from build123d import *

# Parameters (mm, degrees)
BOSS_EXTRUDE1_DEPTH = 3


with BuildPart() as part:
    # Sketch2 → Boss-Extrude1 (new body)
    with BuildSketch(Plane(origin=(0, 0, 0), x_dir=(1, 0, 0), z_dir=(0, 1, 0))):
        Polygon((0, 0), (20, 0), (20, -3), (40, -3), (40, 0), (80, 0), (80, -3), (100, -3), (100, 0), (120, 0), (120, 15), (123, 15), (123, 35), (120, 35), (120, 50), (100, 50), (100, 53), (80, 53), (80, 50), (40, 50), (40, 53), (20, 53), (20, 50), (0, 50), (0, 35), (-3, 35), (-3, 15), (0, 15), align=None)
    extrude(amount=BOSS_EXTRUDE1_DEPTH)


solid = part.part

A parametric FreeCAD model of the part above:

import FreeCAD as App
import Part
import Sketcher
from FreeCAD import Vector

doc = App.newDocument("Part")
body = doc.addObject("PartDesign::Body", "Body")

sketch1 = body.newObject("Sketcher::SketchObject", "Sketch")
sketch1.AttachmentSupport = (doc.getObject("XZ_Plane"), [""])
sketch1.MapMode = "FlatFace"
sketch1.addGeometry([
    Part.LineSegment(Vector(0, 0, 0), Vector(20, 0, 0)),
    Part.LineSegment(Vector(20, 0, 0), Vector(20, 3, 0)),
    Part.LineSegment(Vector(20, 3, 0), Vector(40, 3, 0)),
    Part.LineSegment(Vector(40, 3, 0), Vector(40, 0, 0)),
    Part.LineSegment(Vector(40, 0, 0), Vector(80, 0, 0)),
    Part.LineSegment(Vector(80, 0, 0), Vector(80, 3, 0)),
    Part.LineSegment(Vector(80, 3, 0), Vector(100, 3, 0)),
    Part.LineSegment(Vector(100, 3, 0), Vector(100, 0, 0)),
    Part.LineSegment(Vector(100, 0, 0), Vector(120, 0, 0)),
    Part.LineSegment(Vector(120, 0, 0), Vector(120, -15, 0)),
    Part.LineSegment(Vector(120, -15, 0), Vector(123, -15, 0)),
    Part.LineSegment(Vector(123, -15, 0), Vector(123, -35, 0)),
    Part.LineSegment(Vector(123, -35, 0), Vector(120, -35, 0)),
    Part.LineSegment(Vector(120, -35, 0), Vector(120, -50, 0)),
    Part.LineSegment(Vector(120, -50, 0), Vector(100, -50, 0)),
    Part.LineSegment(Vector(100, -50, 0), Vector(100, -53, 0)),
    Part.LineSegment(Vector(100, -53, 0), Vector(80, -53, 0)),
    Part.LineSegment(Vector(80, -53, 0), Vector(80, -50, 0)),
    Part.LineSegment(Vector(80, -50, 0), Vector(40, -50, 0)),
    Part.LineSegment(Vector(40, -50, 0), Vector(40, -53, 0)),
    Part.LineSegment(Vector(40, -53, 0), Vector(20, -53, 0)),
    Part.LineSegment(Vector(20, -53, 0), Vector(20, -50, 0)),
    Part.LineSegment(Vector(20, -50, 0), Vector(0, -50, 0)),
    Part.LineSegment(Vector(0, -50, 0), Vector(0, -35, 0)),
    Part.LineSegment(Vector(0, -35, 0), Vector(-3, -35, 0)),
    Part.LineSegment(Vector(-3, -35, 0), Vector(-3, -15, 0)),
    Part.LineSegment(Vector(-3, -15, 0), Vector(0, -15, 0)),
    Part.LineSegment(Vector(0, -15, 0), Vector(0, 0, 0)),
], False)
sketch1.addConstraint([
    Sketcher.Constraint("Coincident", 0, 2, 1, 1),
    Sketcher.Constraint("Coincident", 1, 2, 2, 1),
    Sketcher.Constraint("Coincident", 2, 2, 3, 1),
    Sketcher.Constraint("Coincident", 3, 2, 4, 1),
    Sketcher.Constraint("Coincident", 4, 2, 5, 1),
    Sketcher.Constraint("Coincident", 5, 2, 6, 1),
    Sketcher.Constraint("Coincident", 6, 2, 7, 1),
    Sketcher.Constraint("Coincident", 7, 2, 8, 1),
    Sketcher.Constraint("Coincident", 8, 2, 9, 1),
    Sketcher.Constraint("Coincident", 9, 2, 10, 1),
    Sketcher.Constraint("Coincident", 10, 2, 11, 1),
    Sketcher.Constraint("Coincident", 11, 2, 12, 1),
    Sketcher.Constraint("Coincident", 12, 2, 13, 1),
    Sketcher.Constraint("Coincident", 13, 2, 14, 1),
    Sketcher.Constraint("Coincident", 14, 2, 15, 1),
    Sketcher.Constraint("Coincident", 15, 2, 16, 1),
    Sketcher.Constraint("Coincident", 16, 2, 17, 1),
    Sketcher.Constraint("Coincident", 17, 2, 18, 1),
    Sketcher.Constraint("Coincident", 18, 2, 19, 1),
    Sketcher.Constraint("Coincident", 19, 2, 20, 1),
    Sketcher.Constraint("Coincident", 20, 2, 21, 1),
    Sketcher.Constraint("Coincident", 21, 2, 22, 1),
    Sketcher.Constraint("Coincident", 22, 2, 23, 1),
    Sketcher.Constraint("Coincident", 23, 2, 24, 1),
    Sketcher.Constraint("Coincident", 24, 2, 25, 1),
    Sketcher.Constraint("Coincident", 25, 2, 26, 1),
    Sketcher.Constraint("Coincident", 26, 2, 27, 1),
    Sketcher.Constraint("Coincident", 27, 2, 0, 1),
    Sketcher.Constraint("Horizontal", 0),
    Sketcher.Constraint("Vertical", 1),
    Sketcher.Constraint("Horizontal", 2),
    Sketcher.Constraint("Vertical", 3),
    Sketcher.Constraint("Horizontal", 4),
    Sketcher.Constraint("Vertical", 5),
    Sketcher.Constraint("Horizontal", 6),
    Sketcher.Constraint("Vertical", 7),
    Sketcher.Constraint("Horizontal", 8),
    Sketcher.Constraint("Vertical", 9),
    Sketcher.Constraint("Horizontal", 10),
    Sketcher.Constraint("Vertical", 11),
    Sketcher.Constraint("Horizontal", 12),
    Sketcher.Constraint("Vertical", 13),
    Sketcher.Constraint("Horizontal", 14),
    Sketcher.Constraint("Vertical", 15),
    Sketcher.Constraint("Horizontal", 16),
    Sketcher.Constraint("Vertical", 17),
    Sketcher.Constraint("Horizontal", 18),
    Sketcher.Constraint("Vertical", 19),
    Sketcher.Constraint("Horizontal", 20),
    Sketcher.Constraint("Vertical", 21),
    Sketcher.Constraint("Horizontal", 22),
    Sketcher.Constraint("Vertical", 23),
    Sketcher.Constraint("Horizontal", 24),
    Sketcher.Constraint("Vertical", 25),
    Sketcher.Constraint("Horizontal", 26),
    Sketcher.Constraint("Vertical", 27),
    Sketcher.Constraint("Coincident", 27, 2, -1, 1),
    Sketcher.Constraint("PointOnObject", 3, 2, -1),
    Sketcher.Constraint("PointOnObject", 7, 2, -1),
    Sketcher.Constraint("PointOnObject", 22, 2, -2),
    Sketcher.Constraint("Horizontal", 2, 2, 5, 2),
    Sketcher.Constraint("Horizontal", 14, 2, 17, 2),
    Sketcher.Constraint("Horizontal", 16, 2, 19, 2),
    Sketcher.Constraint("Horizontal", 18, 2, 21, 2),
    Sketcher.Constraint("Horizontal", 12, 2, 23, 2),
    Sketcher.Constraint("Horizontal", 10, 2, 25, 2),
    Sketcher.Constraint("Vertical", 9, 2, 12, 2),
    Sketcher.Constraint("Vertical", 7, 2, 14, 2),
    Sketcher.Constraint("Vertical", 5, 2, 16, 2),
    Sketcher.Constraint("Vertical", 3, 2, 18, 2),
    Sketcher.Constraint("Vertical", 1, 2, 20, 2),
    Sketcher.Constraint("Equal", 0, 2),
    Sketcher.Constraint("Equal", 2, 6),
    Sketcher.Constraint("Equal", 6, 8),
    Sketcher.Constraint("Equal", 12, 24),
    Sketcher.Constraint("Equal", 26, 1),
    Sketcher.Constraint("Equal", 22, 11),
    Sketcher.Constraint("Equal", 9, 13),
    Sketcher.Constraint("Equal", 7, 15),
    Sketcher.Constraint("DistanceX", 0, 1, 0, 2, 20.0),
    Sketcher.Constraint("DistanceX", 4, 1, 4, 2, 40.0),
    Sketcher.Constraint("DistanceX", 10, 1, 10, 2, 3.0),
    Sketcher.Constraint("DistanceY", 9, 2, 9, 1, 15.0),
])
pad1 = body.newObject("PartDesign::Pad", "Pad")
pad1.Profile = sketch1
pad1.Length = 3
pad1.Reversed = True

doc.recompute()
